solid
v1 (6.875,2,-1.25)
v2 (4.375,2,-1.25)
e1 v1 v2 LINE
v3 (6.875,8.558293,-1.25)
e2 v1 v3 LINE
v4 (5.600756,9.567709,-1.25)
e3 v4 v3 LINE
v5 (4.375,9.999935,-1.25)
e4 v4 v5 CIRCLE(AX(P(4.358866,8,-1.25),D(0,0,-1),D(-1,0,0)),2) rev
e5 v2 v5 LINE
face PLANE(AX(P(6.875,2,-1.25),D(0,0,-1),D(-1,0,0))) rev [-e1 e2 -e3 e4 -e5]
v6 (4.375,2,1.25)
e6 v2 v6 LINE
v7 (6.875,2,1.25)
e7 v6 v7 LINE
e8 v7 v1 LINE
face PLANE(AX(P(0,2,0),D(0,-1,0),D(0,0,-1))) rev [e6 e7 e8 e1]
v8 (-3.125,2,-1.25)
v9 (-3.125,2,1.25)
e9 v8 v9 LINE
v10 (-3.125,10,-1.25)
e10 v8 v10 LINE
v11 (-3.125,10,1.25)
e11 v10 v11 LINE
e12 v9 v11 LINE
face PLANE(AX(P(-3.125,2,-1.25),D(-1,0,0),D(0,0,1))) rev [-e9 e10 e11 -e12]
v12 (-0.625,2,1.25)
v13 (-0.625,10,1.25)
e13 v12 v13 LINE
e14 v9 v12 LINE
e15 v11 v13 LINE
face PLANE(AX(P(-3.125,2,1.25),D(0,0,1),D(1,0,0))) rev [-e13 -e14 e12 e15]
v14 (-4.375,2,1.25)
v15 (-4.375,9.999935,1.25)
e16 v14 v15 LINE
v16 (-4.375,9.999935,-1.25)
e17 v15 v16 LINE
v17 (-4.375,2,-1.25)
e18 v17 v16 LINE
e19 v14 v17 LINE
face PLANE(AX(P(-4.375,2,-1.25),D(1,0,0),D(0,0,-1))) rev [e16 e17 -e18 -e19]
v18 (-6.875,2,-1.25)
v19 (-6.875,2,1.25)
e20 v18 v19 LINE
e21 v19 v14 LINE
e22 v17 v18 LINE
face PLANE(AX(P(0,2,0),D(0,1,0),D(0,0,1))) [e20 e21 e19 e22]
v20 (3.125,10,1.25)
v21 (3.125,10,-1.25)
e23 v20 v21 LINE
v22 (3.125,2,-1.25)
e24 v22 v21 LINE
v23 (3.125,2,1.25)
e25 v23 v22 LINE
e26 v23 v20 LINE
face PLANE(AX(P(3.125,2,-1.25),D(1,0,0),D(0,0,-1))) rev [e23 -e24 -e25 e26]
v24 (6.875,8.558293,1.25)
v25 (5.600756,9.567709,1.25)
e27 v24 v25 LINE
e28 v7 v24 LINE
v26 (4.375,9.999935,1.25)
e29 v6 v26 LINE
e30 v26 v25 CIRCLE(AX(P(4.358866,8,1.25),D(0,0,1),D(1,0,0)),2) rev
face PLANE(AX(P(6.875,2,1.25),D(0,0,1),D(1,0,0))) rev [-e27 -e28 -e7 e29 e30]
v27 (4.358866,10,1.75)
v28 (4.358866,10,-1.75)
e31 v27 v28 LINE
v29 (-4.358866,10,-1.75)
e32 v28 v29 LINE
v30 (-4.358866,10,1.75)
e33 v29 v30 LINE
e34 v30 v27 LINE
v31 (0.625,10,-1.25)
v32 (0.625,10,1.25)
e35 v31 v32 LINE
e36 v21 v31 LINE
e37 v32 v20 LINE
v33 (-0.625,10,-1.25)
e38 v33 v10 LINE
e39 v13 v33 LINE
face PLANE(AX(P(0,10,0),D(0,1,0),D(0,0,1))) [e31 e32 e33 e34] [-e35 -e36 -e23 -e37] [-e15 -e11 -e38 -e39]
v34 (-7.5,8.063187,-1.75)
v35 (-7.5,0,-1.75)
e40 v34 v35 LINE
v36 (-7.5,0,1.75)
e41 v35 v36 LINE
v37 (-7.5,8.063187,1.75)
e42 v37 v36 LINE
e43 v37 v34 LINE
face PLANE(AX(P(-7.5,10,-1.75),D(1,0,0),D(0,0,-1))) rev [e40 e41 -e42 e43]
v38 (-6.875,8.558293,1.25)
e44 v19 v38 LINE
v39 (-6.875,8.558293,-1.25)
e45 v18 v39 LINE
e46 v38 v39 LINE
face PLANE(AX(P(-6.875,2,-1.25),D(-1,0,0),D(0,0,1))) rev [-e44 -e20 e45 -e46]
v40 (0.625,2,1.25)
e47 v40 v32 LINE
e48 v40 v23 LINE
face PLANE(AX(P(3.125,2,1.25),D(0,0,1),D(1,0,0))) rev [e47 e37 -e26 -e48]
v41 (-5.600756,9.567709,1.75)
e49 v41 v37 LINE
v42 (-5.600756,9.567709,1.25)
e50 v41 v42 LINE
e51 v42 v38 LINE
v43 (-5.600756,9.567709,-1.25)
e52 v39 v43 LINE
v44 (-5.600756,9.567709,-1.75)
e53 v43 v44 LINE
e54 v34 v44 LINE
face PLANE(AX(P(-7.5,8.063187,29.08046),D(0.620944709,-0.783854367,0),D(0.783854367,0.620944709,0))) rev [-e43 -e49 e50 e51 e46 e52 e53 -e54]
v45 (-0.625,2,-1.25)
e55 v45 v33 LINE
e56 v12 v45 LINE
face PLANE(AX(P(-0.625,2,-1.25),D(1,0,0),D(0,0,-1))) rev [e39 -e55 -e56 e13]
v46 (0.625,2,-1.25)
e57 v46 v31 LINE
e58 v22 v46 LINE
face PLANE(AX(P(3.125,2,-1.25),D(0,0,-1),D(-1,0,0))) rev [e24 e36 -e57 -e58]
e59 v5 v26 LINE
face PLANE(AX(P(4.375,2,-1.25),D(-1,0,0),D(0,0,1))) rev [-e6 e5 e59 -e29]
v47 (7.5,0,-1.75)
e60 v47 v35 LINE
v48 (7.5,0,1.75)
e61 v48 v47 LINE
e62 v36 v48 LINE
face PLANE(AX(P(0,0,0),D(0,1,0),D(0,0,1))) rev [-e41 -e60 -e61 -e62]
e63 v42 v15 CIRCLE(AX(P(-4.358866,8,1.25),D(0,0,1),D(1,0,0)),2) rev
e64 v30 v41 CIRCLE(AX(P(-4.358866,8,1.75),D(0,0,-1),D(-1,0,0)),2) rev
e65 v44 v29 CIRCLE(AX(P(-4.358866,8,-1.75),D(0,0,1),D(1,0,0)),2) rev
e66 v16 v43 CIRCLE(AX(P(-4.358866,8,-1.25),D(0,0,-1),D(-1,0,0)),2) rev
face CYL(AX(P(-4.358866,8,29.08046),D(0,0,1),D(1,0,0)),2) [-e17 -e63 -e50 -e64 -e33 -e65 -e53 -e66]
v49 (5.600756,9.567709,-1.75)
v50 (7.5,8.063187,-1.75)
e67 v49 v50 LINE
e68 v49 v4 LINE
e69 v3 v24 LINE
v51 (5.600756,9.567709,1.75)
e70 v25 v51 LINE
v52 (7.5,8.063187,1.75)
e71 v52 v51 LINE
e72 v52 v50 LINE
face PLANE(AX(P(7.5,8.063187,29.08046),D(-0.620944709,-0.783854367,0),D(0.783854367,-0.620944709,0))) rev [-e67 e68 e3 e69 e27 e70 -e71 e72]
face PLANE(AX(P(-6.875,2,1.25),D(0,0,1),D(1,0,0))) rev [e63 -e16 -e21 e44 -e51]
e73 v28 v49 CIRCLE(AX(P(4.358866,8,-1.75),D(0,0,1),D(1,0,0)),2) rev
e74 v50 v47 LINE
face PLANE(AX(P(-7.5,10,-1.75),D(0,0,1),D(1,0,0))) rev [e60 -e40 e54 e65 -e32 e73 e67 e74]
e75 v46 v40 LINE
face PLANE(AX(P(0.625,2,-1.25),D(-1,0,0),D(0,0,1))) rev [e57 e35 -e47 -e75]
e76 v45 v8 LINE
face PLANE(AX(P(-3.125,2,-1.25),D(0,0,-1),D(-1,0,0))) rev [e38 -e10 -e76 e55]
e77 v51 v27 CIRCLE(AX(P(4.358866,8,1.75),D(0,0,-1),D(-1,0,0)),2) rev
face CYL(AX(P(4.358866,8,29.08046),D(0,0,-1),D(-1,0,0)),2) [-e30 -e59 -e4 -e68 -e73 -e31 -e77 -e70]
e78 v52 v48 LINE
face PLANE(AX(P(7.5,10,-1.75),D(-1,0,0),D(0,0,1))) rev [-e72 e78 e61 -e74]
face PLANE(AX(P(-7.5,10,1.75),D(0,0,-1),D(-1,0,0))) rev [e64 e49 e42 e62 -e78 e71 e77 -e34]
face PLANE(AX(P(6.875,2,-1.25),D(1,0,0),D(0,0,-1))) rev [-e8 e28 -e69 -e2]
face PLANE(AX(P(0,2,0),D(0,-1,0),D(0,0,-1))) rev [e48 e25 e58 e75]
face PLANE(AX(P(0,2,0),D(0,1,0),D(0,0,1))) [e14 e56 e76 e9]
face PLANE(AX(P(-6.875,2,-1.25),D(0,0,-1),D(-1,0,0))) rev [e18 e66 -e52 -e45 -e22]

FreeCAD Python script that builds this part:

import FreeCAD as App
import Part
import Sketcher
Q = App.Units.Quantity


def edges_at(feature, points):
    """Names of the edges that pass closest to the given points."""
    edges = feature.Shape.Edges
    near = lambda p: min(range(len(edges)), key=lambda i: edges[i].distToShape(Part.Vertex(*p))[0])
    return sorted({f"Edge{near(p) + 1}" for p in points})

doc = App.newDocument("Part")
body = doc.addObject("PartDesign::Body", "Body")

# Sketch on XZ plane
sketch1 = body.newObject("Sketcher::SketchObject", "Sketch")
sketch1.AttachmentSupport = (doc.getObject("XZ_Plane"), [""])
sketch1.MapMode = "FlatFace"
sketch1.addGeometry([
    Part.LineSegment(App.Vector(-7.5, -1.8, 0), App.Vector(-7.5, 1.8, 0)),
    Part.LineSegment(App.Vector(-7.5, 1.8, 0), App.Vector(7.5, 1.8, 0)),
    Part.LineSegment(App.Vector(7.5, 1.8, 0), App.Vector(7.5, -1.8, 0)),
    Part.LineSegment(App.Vector(7.5, -1.8, 0), App.Vector(-7.5, -1.8, 0)),
], False)
sketch1.addConstraint([
    Sketcher.Constraint("Coincident", 0, 2, 1, 1),
    Sketcher.Constraint("Coincident", 1, 2, 2, 1),
    Sketcher.Constraint("Coincident", 2, 2, 3, 1),
    Sketcher.Constraint("Coincident", 3, 2, 0, 1),
    Sketcher.Constraint("Vertical", 0),
    Sketcher.Constraint("Horizontal", 1),
    Sketcher.Constraint("Vertical", 2),
    Sketcher.Constraint("Horizontal", 3),
    Sketcher.Constraint("Symmetric", 0, 2, 2, 2, -1, 1),
    Sketcher.Constraint("DistanceX", 1, 1, 1, 2, Q("15 mm")),
    Sketcher.Constraint("DistanceY", 0, 1, 0, 2, Q("3.5 mm")),
])
pad1 = body.newObject("PartDesign::Pad", "Pad")
pad1.Profile = sketch1
pad1.Length = 10
pad1.Reversed = True

# Sketch on XY plane
sketch2 = body.newObject("Sketcher::SketchObject", "Sketch001")
sketch2.AttachmentSupport = (doc.getObject("XY_Plane"), [""])
sketch2.MapMode = "FlatFace"
sketch2.AttachmentOffset = App.Placement(App.Vector(0, 0, 1.75), App.Rotation())
sketch2.addGeometry([
    Part.LineSegment(App.Vector(-42, -19.3, 0), App.Vector(-7.5, 8.1, 0)),  # 0
    Part.LineSegment(App.Vector(-7.5, 8.1, 0), App.Vector(-5.1, 10, 0)),  # 1
    Part.LineSegment(App.Vector(-5.1, 10, 0), App.Vector(5.1, 10, 0)),  # 2
    Part.LineSegment(App.Vector(5.1, 10, 0), App.Vector(7.5, 8.1, 0)),  # 3
    Part.LineSegment(App.Vector(7.5, 8.1, 0), App.Vector(42, -19.3, 0)),  # 4
    Part.LineSegment(App.Vector(42, -19.3, 0), App.Vector(42, 68.8, 0)),  # 5
    Part.LineSegment(App.Vector(42, 68.8, 0), App.Vector(-42, 68.8, 0)),  # 6
    Part.LineSegment(App.Vector(-42, 68.8, 0), App.Vector(-42, -19.3, 0)),  # 7
], False)
sketch2.addConstraint([
    Sketcher.Constraint("Coincident", 0, 2, 1, 1),
    Sketcher.Constraint("Coincident", 1, 2, 2, 1),
    Sketcher.Constraint("Coincident", 2, 2, 3, 1),
    Sketcher.Constraint("Coincident", 3, 2, 4, 1),
    Sketcher.Constraint("Coincident", 4, 2, 5, 1),
    Sketcher.Constraint("Coincident", 5, 2, 6, 1),
    Sketcher.Constraint("Coincident", 6, 2, 7, 1),
    Sketcher.Constraint("Coincident", 7, 2, 0, 1),
    Sketcher.Constraint("Horizontal", 2),
    Sketcher.Constraint("Vertical", 5),
    Sketcher.Constraint("Horizontal", 6),
    Sketcher.Constraint("Vertical", 7),
    Sketcher.Constraint("Symmetric", 0, 2, 3, 2, -2),
    Sketcher.Constraint("Symmetric", 4, 2, 7, 2, -2),
    Sketcher.Constraint("Parallel", 0, 1),
    Sketcher.Constraint("Parallel", 3, 4),
    Sketcher.Constraint("DistanceY", -1, 1, 1, 2, Q("10 mm")),
    Sketcher.Constraint("DistanceX", 0, 2, 3, 2, Q("15 mm")),
    Sketcher.Constraint("DistanceX", 2, 1, 2, 2, Q("10.110099 mm")),
    Sketcher.Constraint("DistanceX", 2, 2, 4, 2, Q("36.981302 mm")),
    Sketcher.Constraint("Distance", 1, Q("3.119139 mm")),
    Sketcher.Constraint("DistanceY", 5, 1, 5, 2, Q("88.119306 mm")),
])
pocket1 = body.newObject("PartDesign::Pocket", "Pocket")
pocket1.Profile = sketch2
pocket1.Type = "ThroughAll"
pocket1.Midplane = True
doc.recompute()

fillet = body.newObject("PartDesign::Fillet", "Fillet")
fillet.Base = (pocket1, edges_at(pocket1, [(5.055, 10, 0), (-5.055, 10, 0)]))
fillet.Radius = 2

# Sketch on XZ plane
sketch3 = body.newObject("Sketcher::SketchObject", "Sketch002")
sketch3.AttachmentSupport = (doc.getObject("XZ_Plane"), [""])
sketch3.MapMode = "FlatFace"
sketch3.AttachmentOffset = App.Placement(App.Vector(0, 0, -10), App.Rotation())
sketch3.addGeometry([
    Part.LineSegment(App.Vector(-3.1, -1.2, 0), App.Vector(-3.1, 1.2, 0)),  # 0
    Part.LineSegment(App.Vector(-3.1, 1.2, 0), App.Vector(-0.6, 1.2, 0)),  # 1
    Part.LineSegment(App.Vector(-0.6, 1.2, 0), App.Vector(-0.6, -1.2, 0)),  # 2
    Part.LineSegment(App.Vector(-0.6, -1.2, 0), App.Vector(-3.1, -1.2, 0)),  # 3
    Part.LineSegment(App.Vector(-6.9, -1.2, 0), App.Vector(-6.9, 1.2, 0)),  # 4
    Part.LineSegment(App.Vector(-6.9, 1.2, 0), App.Vector(-4.4, 1.2, 0)),  # 5
    Part.LineSegment(App.Vector(-4.4, 1.2, 0), App.Vector(-4.4, -1.2, 0)),  # 6
    Part.LineSegment(App.Vector(-4.4, -1.2, 0), App.Vector(-6.9, -1.2, 0)),  # 7
    Part.LineSegment(App.Vector(4.4, -1.2, 0), App.Vector(4.4, 1.2, 0)),  # 8
    Part.LineSegment(App.Vector(4.4, 1.2, 0), App.Vector(6.9, 1.2, 0)),  # 9
    Part.LineSegment(App.Vector(6.9, 1.2, 0), App.Vector(6.9, -1.2, 0)),  # 10
    Part.LineSegment(App.Vector(6.9, -1.2, 0), App.Vector(4.4, -1.2, 0)),  # 11
    Part.LineSegment(App.Vector(0.6, -1.2, 0), App.Vector(0.6, 1.2, 0)),  # 12
    Part.LineSegment(App.Vector(0.6, 1.2, 0), App.Vector(3.1, 1.2, 0)),  # 13
    Part.LineSegment(App.Vector(3.1, 1.2, 0), App.Vector(3.1, -1.2, 0)),  # 14
    Part.LineSegment(App.Vector(3.1, -1.2, 0), App.Vector(0.6, -1.2, 0)),  # 15
], False)
sketch3.addConstraint([
    Sketcher.Constraint("Coincident", 0, 2, 1, 1),
    Sketcher.Constraint("Coincident", 1, 2, 2, 1),
    Sketcher.Constraint("Coincident", 2, 2, 3, 1),
    Sketcher.Constraint("Coincident", 3, 2, 0, 1),
    Sketcher.Constraint("Coincident", 4, 2, 5, 1),
    Sketcher.Constraint("Coincident", 5, 2, 6, 1),
    Sketcher.Constraint("Coincident", 6, 2, 7, 1),
    Sketcher.Constraint("Coincident", 7, 2, 4, 1),
    Sketcher.Constraint("Coincident", 8, 2, 9, 1),
    Sketcher.Constraint("Coincident", 9, 2, 10, 1),
    Sketcher.Constraint("Coincident", 10, 2, 11, 1),
    Sketcher.Constraint("Coincident", 11, 2, 8, 1),
    Sketcher.Constraint("Coincident", 12, 2, 13, 1),
    Sketcher.Constraint("Coincident", 13, 2, 14, 1),
    Sketcher.Constraint("Coincident", 14, 2, 15, 1),
    Sketcher.Constraint("Coincident", 15, 2, 12, 1),
    Sketcher.Constraint("Vertical", 0),
    Sketcher.Constraint("Horizontal", 1),
    Sketcher.Constraint("Vertical", 2),
    Sketcher.Constraint("Horizontal", 3),
    Sketcher.Constraint("Vertical", 4),
    Sketcher.Constraint("Horizontal", 5),
    Sketcher.Constraint("Vertical", 6),
    Sketcher.Constraint("Horizontal", 7),
    Sketcher.Constraint("Vertical", 8),
    Sketcher.Constraint("Horizontal", 9),
    Sketcher.Constraint("Vertical", 10),
    Sketcher.Constraint("Horizontal", 11),
    Sketcher.Constraint("Vertical", 12),
    Sketcher.Constraint("Horizontal", 13),
    Sketcher.Constraint("Vertical", 14),
    Sketcher.Constraint("Horizontal", 15),
    Sketcher.Constraint("Symmetric", 6, 2, 8, 2, -1, 1),
    Sketcher.Constraint("Symmetric", 4, 2, 10, 2, -1, 1),
    Sketcher.Constraint("Symmetric", 2, 2, 12, 2, -1, 1),
    Sketcher.Constraint("Symmetric", 0, 2, 14, 2, -1, 1),
    Sketcher.Constraint("Horizontal", 1, 2, 4, 2),
    Sketcher.Constraint("Horizontal", 3, 2, 6, 2),
    Sketcher.Constraint("Horizontal", 5, 2, 8, 2),
    Sketcher.Constraint("Equal", 3, 5),
    Sketcher.Constraint("Equal", 15, 0),
    Sketcher.Constraint("DistanceX", 1, 1, 1, 2, Q("2.5 mm")),
    Sketcher.Constraint("DistanceX", 1, 2, 8, 2, Q("5 mm")),
    Sketcher.Constraint("DistanceX", 4, 2, 0, 2, Q("3.75 mm")),
])
pocket2 = body.newObject("PartDesign::Pocket", "Pocket001")
pocket2.Profile = sketch3
pocket2.Length = 8
pocket2.Reversed = True

doc.recompute()
